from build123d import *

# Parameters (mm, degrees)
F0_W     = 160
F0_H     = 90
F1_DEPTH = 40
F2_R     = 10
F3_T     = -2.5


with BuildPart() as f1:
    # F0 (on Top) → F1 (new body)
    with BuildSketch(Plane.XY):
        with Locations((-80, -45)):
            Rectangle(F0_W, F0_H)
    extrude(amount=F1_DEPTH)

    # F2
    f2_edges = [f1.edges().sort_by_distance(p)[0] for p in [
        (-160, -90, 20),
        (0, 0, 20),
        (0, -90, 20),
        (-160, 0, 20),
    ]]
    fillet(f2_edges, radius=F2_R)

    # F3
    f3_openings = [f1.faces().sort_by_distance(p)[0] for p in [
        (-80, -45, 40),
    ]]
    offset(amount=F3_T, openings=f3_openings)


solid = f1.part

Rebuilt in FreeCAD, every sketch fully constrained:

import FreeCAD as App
import Part
import Sketcher

V = App.Vector


def edges_at(feature, points):
    """Names of the edges that pass closest to the given points."""
    edges = feature.Shape.Edges
    near = lambda p: min(range(len(edges)), key=lambda i: edges[i].distToShape(Part.Vertex(*p))[0])
    return sorted({f"Edge{near(p) + 1}" for p in points})


def faces_at(feature, points):
    """Names of the faces that lie closest to the given points."""
    faces = feature.Shape.Faces
    near = lambda p: min(range(len(faces)), key=lambda i: faces[i].distToShape(Part.Vertex(*p))[0])
    return sorted({f"Face{near(p) + 1}" for p in points})

doc = App.newDocument("Part")
body = doc.addObject("PartDesign::Body", "Body")

# Sketch on XY plane
sketch1 = body.newObject("Sketcher::SketchObject", "Sketch")
sketch1.AttachmentSupport = (doc.getObject("XY_Plane"), [""])
sketch1.MapMode = "FlatFace"
sketch1.addGeometry(Part.LineSegment(V(-160, 0, 0), V(-160, -90, 0)), False)
sketch1.addGeometry(Part.LineSegment(V(-160, -90, 0), V(0, -90, 0)), False)
sketch1.addGeometry(Part.LineSegment(V(0, -90, 0), V(0, 0, 0)), False)
sketch1.addGeometry(Part.LineSegment(V(0, 0, 0), V(-160, 0, 0)), False)
sketch1.addConstraint(Sketcher.Constraint("Coincident", 0, 2, 1, 1))
sketch1.addConstraint(Sketcher.Constraint("Coincident", 1, 2, 2, 1))
sketch1.addConstraint(Sketcher.Constraint("Coincident", 2, 2, 3, 1))
sketch1.addConstraint(Sketcher.Constraint("Coincident", 3, 2, 0, 1))
sketch1.addConstraint(Sketcher.Constraint("Vertical", 0))
sketch1.addConstraint(Sketcher.Constraint("Horizontal", 1))
sketch1.addConstraint(Sketcher.Constraint("Vertical", 2))
sketch1.addConstraint(Sketcher.Constraint("Horizontal", 3))
sketch1.addConstraint(Sketcher.Constraint("Coincident", 2, 2, -1, 1))
sketch1.addConstraint(Sketcher.Constraint("DistanceX", 1, 1, 1, 2, 160.0))
sketch1.addConstraint(Sketcher.Constraint("DistanceY", 0, 2, 0, 1, 90.0))
pad1 = body.newObject("PartDesign::Pad", "Pad")
pad1.Profile = sketch1
pad1.Length = 40
doc.recompute()

fillet = body.newObject("PartDesign::Fillet", "Fillet")
fillet.Base = (pad1, edges_at(pad1, [
    (-160, -90, 20),
    (0, 0, 20),
    (0, -90, 20),
    (-160, 0, 20),
]))
fillet.Radius = 10
doc.recompute()

thickness = body.newObject("PartDesign::Thickness", "Thickness")
thickness.Base = (fillet, faces_at(fillet, [(-80, -45, 40)]))
thickness.Value = 2.5
thickness.Reversed = True
thickness.Join = "Arc"

doc.recompute()
